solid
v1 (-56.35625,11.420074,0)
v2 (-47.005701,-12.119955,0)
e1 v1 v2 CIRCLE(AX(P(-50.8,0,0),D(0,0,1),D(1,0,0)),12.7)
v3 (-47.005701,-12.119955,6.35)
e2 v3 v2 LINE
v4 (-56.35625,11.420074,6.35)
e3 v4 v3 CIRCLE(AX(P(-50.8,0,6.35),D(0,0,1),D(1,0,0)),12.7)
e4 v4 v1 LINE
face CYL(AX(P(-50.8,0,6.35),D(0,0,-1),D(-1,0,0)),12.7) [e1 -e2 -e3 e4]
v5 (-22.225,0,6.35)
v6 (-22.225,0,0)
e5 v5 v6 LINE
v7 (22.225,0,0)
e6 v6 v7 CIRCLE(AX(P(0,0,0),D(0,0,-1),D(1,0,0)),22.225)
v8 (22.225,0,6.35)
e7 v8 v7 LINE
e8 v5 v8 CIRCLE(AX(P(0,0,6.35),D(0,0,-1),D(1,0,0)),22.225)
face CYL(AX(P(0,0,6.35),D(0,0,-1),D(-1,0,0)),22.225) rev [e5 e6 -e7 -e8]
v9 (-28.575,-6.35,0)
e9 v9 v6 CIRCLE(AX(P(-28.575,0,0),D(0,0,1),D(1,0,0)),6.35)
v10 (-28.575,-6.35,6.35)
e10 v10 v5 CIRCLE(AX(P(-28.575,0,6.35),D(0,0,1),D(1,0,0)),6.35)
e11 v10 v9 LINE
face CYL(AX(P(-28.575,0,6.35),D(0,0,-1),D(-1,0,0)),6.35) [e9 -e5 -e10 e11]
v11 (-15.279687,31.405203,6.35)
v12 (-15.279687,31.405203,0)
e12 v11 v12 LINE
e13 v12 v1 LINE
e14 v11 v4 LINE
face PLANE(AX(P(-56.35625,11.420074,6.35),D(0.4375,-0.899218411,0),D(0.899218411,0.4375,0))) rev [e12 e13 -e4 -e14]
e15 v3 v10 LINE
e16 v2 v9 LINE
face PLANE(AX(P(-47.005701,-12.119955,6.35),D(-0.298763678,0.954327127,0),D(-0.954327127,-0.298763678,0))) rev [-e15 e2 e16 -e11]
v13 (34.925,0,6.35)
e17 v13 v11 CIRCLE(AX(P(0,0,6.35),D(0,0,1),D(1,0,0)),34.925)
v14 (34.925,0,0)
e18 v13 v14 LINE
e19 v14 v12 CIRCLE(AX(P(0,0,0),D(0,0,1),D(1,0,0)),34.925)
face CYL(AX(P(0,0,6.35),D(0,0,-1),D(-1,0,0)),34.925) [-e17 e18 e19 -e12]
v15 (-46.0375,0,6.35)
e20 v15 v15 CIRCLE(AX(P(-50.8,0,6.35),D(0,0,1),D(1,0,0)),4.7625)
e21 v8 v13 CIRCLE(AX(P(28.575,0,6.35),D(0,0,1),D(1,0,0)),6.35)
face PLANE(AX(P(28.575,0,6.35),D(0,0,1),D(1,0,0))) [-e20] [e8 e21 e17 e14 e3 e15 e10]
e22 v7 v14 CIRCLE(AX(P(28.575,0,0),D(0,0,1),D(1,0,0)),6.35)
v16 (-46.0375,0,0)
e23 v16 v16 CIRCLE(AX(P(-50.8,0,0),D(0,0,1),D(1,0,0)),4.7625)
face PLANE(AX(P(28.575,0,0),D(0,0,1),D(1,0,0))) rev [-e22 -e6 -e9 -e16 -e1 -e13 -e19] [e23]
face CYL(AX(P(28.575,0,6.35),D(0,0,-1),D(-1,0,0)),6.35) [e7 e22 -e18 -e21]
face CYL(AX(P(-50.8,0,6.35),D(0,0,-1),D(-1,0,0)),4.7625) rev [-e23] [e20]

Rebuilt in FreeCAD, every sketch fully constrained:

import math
import FreeCAD as App
import Part
import Sketcher
Q = App.Units.Quantity

doc = App.newDocument("Part")
body = doc.addObject("PartDesign::Body", "Body")

sketch1 = doc.addObject("Sketcher::SketchObject", "Sketch")
body.addObject(sketch1)
sketch1.AttachmentSupport = (doc.XY_Plane, [""])
sketch1.MapMode = "FlatFace"
sketch1.addGeometry([
    Part.LineSegment(App.Vector(-15.279687, 31.405203, 0), App.Vector(-56.35625, 11.420074, 0)),
    Part.ArcOfCircle(Part.Circle(App.Vector(-50.8, 0, 0), App.Vector(0, 0, 1), 12.7), math.radians(115.94448), math.radians(287.383362)),
    Part.LineSegment(App.Vector(-47.005701, -12.119955, 0), App.Vector(-28.575, -6.35, 0)),
    Part.ArcOfCircle(Part.Circle(App.Vector(-28.575, 0, 0), App.Vector(0, 0, 1), 6.35), math.radians(-90), math.radians(0)),
    Part.ArcOfCircle(Part.Circle(App.Vector(0, 0, 0), App.Vector(0, 0, 1), 22.225), math.radians(0), math.radians(180)),
    Part.ArcOfCircle(Part.Circle(App.Vector(28.575, 0, 0), App.Vector(0, 0, 1), 6.35), math.radians(180), math.radians(360)),
    Part.ArcOfCircle(Part.Circle(App.Vector(0, 0, 0), App.Vector(0, 0, 1), 34.925), math.radians(0), math.radians(115.94448)),
    Part.Circle(App.Vector(-50.8, 0, 0), App.Vector(0, 0, 1), 4.7625),
], False)
sketch1.addConstraint([
    Sketcher.Constraint("Tangent", 0, 2, 1, 1),
    Sketcher.Constraint("Tangent", 1, 2, 2, 1),
    Sketcher.Constraint("Coincident", 2, 2, 3, 1),
    Sketcher.Constraint("Tangent", 3, 2, 4, 2),
    Sketcher.Constraint("Tangent", 4, 1, 5, 1),
    Sketcher.Constraint("Tangent", 5, 2, 6, 1),
    Sketcher.Constraint("Tangent", 6, 2, 0, 1),
    Sketcher.Constraint("Coincident", 4, 3, -1, 1),
    Sketcher.Constraint("Coincident", 6, 3, -1, 1),
    Sketcher.Constraint("Coincident", 7, 3, 1, 3),
    Sketcher.Constraint("Equal", 3, 5),
    Sketcher.Constraint("PointOnObject", 1, 3, -1),
    Sketcher.Constraint("PointOnObject", 3, 3, -1),
    Sketcher.Constraint("PointOnObject", 5, 3, -1),
    Sketcher.Constraint("Vertical", 3, 3, 2, 2),
    Sketcher.Constraint("Radius", 1, Q("0.5 in")),
    Sketcher.Constraint("Radius", 3, Q("0.25 in")),
    Sketcher.Constraint("Diameter", 7, Q("0.375 in")),
    Sketcher.Constraint("DistanceX", 1, 3, -1, 1, Q("2 in")),
    Sketcher.Constraint("Radius", 4, Q("0.875 in")),
])
pad1 = doc.addObject("PartDesign::Pad", "Pad")
body.addObject(pad1)
pad1.Profile = sketch1
pad1.Length = Q("0.25 in")

doc.recompute()
